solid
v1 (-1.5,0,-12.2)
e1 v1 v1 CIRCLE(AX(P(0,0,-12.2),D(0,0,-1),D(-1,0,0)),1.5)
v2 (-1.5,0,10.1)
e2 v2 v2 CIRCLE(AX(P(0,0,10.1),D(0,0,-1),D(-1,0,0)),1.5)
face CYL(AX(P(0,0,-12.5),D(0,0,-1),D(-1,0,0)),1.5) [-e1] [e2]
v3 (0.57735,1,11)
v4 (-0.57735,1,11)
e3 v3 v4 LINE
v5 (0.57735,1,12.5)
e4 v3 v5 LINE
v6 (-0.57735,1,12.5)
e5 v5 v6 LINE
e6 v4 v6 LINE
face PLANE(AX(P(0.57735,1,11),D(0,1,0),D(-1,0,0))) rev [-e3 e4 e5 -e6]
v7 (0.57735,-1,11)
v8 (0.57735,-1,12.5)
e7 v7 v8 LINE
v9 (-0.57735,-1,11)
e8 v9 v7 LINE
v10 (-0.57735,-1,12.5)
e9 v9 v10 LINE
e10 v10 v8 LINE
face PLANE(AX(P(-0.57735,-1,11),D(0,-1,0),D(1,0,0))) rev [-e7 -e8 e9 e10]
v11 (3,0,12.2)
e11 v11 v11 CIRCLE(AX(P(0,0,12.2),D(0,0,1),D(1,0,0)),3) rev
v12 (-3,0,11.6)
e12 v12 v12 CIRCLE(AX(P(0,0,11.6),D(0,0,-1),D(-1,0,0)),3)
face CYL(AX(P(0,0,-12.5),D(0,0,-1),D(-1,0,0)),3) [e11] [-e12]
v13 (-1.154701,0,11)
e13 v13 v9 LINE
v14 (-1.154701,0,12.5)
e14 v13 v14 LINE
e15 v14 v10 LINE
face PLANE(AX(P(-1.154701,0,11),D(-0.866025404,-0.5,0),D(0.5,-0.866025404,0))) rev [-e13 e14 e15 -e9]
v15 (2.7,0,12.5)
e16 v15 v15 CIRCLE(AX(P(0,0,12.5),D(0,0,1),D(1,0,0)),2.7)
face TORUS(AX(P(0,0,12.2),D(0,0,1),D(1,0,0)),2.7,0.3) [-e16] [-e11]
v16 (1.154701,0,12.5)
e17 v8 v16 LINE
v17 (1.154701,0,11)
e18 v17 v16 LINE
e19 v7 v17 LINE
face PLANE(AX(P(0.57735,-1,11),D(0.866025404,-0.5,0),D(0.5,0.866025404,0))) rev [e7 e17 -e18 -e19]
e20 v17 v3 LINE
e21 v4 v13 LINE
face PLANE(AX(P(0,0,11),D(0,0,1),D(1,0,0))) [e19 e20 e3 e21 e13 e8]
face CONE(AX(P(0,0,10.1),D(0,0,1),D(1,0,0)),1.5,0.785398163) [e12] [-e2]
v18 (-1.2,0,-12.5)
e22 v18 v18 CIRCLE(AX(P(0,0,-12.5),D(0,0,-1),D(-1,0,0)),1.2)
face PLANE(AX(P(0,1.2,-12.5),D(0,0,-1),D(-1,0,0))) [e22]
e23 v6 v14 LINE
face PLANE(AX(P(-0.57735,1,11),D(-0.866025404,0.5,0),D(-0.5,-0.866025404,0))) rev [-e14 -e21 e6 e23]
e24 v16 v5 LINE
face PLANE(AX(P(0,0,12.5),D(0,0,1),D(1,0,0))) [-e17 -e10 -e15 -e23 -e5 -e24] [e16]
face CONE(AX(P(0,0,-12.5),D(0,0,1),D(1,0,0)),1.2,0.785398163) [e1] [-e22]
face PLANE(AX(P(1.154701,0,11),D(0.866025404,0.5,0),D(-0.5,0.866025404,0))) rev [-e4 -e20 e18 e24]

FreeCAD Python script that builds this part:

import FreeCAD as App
import Part
import Sketcher

V = App.Vector
Q = App.Units.Quantity


def edges_at(feature, points):
    """Names of the edges that pass closest to the given points."""
    edges = feature.Shape.Edges
    near = lambda p: min(range(len(edges)), key=lambda i: edges[i].distToShape(Part.Vertex(*p))[0])
    return sorted({f"Edge{near(p) + 1}" for p in points})


def add_polygon(sketch, points):
    """Adds a closed chain of lines whose ends are joined by coincident constraints."""
    first, n = sketch.GeometryCount, len(points)
    for a, b in zip(points, points[1:] + points[:1]):
        sketch.addGeometry(Part.LineSegment(App.Vector(*a, 0), App.Vector(*b, 0)), False)
    for i in range(n):
        sketch.addConstraint(Sketcher.Constraint("Coincident", first + i, 2, first + (i + 1) % n, 1))

doc = App.newDocument("Part")
body = doc.addObject("PartDesign::Body", "Body")

# Sketch on YZ plane
sketch1 = body.newObject("Sketcher::SketchObject", "Sketch")
sketch1.AttachmentSupport = (doc.getObject("YZ_Plane"), [""])
sketch1.MapMode = "FlatFace"
add_polygon(sketch1, [(3, 12.5), (0, 12.5), (0, -12.5), (1.2, -12.5), (1.5, -12.2), (1.5, 10.1), (3, 11.6)])  # lines 0-6
sketch1.addConstraint([
    Sketcher.Constraint("Horizontal", 0),
    Sketcher.Constraint("Vertical", 1),
    Sketcher.Constraint("Horizontal", 2),
    Sketcher.Constraint("Vertical", 4),
    Sketcher.Constraint("Vertical", 6),
    Sketcher.Constraint("Symmetric", 0, 2, 1, 2, -1, 1),
    Sketcher.Constraint("Parallel", 3, 5),
    Sketcher.Constraint("DistanceX", 0, 2, 0, 1, Q("3 mm")),
    Sketcher.Constraint("DistanceY", 1, 2, 1, 1, Q("25 mm")),
    Sketcher.Constraint("Angle", 3, Q("45 deg")),
    Sketcher.Constraint("DistanceX", 2, 1, 2, 2, Q("1.2 mm")),
    Sketcher.Constraint("DistanceY", 4, 1, 4, 2, Q("22.3 mm")),
    Sketcher.Constraint("DistanceX", -1, 1, 3, 2, Q("1.5 mm")),
])
revolution = body.newObject("PartDesign::Revolution", "Revolution")
revolution.Profile = sketch1
revolution.ReferenceAxis = (sketch1, ["V_Axis"])
revolution.Angle = 360

# Sketch on XY plane
sketch2 = body.newObject("Sketcher::SketchObject", "Sketch001")
sketch2.AttachmentSupport = (doc.getObject("XY_Plane"), [""])
sketch2.MapMode = "FlatFace"
sketch2.AttachmentOffset = App.Placement(V(0, 0, 12.5), App.Rotation())
add_polygon(sketch2, [(1.154701, 0), (0.57735, 1), (-0.57735, 1), (-1.154701, 0), (-0.57735, -1), (0.57735, -1)])  # lines 0-5
sketch2.addConstraint([
    Sketcher.Constraint("Horizontal", 1),
    Sketcher.Constraint("Horizontal", 4),
    Sketcher.Constraint("Symmetric", 0, 2, 3, 2, -1, 1),
    Sketcher.Constraint("Symmetric", 2, 2, 5, 2, -1, 1),
    Sketcher.Constraint("PointOnObject", 2, 2, -1),
    Sketcher.Constraint("Parallel", 2, 5),
    Sketcher.Constraint("Vertical", 1, 2, 3, 2),
    Sketcher.Constraint("Angle", 0, Q("120 deg")),
    Sketcher.Constraint("DistanceY", -1, 1, 0, 2, Q("1 mm")),
    Sketcher.Constraint("DistanceX", 1, 2, 1, 1, Q("1.154701 mm")),
])
pocket1 = body.newObject("PartDesign::Pocket", "Pocket")
pocket1.Profile = sketch2
pocket1.Length = 1.5
doc.recompute()

fillet = body.newObject("PartDesign::Fillet", "Fillet")
fillet.Base = (pocket1, edges_at(pocket1, [(3, 0, 12.5)]))
fillet.Radius = 0.3

doc.recompute()
